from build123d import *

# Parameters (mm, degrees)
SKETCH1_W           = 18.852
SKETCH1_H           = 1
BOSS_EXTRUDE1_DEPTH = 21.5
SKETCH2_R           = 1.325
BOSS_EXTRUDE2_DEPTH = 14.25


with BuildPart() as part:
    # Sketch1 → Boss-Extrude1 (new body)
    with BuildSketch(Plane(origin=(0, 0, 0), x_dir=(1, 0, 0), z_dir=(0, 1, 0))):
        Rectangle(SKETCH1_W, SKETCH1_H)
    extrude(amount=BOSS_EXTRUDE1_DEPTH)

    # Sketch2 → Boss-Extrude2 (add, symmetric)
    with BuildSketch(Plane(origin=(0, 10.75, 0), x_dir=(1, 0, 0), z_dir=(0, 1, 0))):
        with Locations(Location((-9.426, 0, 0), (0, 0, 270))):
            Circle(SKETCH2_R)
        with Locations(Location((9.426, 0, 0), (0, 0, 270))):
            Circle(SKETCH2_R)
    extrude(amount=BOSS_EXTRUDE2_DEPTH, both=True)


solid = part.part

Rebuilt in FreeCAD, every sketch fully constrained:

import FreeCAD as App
import Part
import Sketcher

V = App.Vector
Q = App.Units.Quantity

doc = App.newDocument("Part")
body = doc.addObject("PartDesign::Body", "Body")

sketch1 = body.newObject("Sketcher::SketchObject", "Sketch")
sketch1.AttachmentSupport = (doc.getObject("XZ_Plane"), [""])
sketch1.MapMode = "FlatFace"
sketch1.addGeometry([
    Part.LineSegment(V(-9.4, -0.5, 0), V(-9.4, 0.5, 0)),
    Part.LineSegment(V(-9.4, 0.5, 0), V(9.4, 0.5, 0)),
    Part.LineSegment(V(9.4, 0.5, 0), V(9.4, -0.5, 0)),
    Part.LineSegment(V(9.4, -0.5, 0), V(-9.4, -0.5, 0)),
], False)
sketch1.addConstraint([
    Sketcher.Constraint("Coincident", 0, 2, 1, 1),
    Sketcher.Constraint("Coincident", 1, 2, 2, 1),
    Sketcher.Constraint("Coincident", 2, 2, 3, 1),
    Sketcher.Constraint("Coincident", 3, 2, 0, 1),
    Sketcher.Constraint("Vertical", 0),
    Sketcher.Constraint("Horizontal", 1),
    Sketcher.Constraint("Vertical", 2),
    Sketcher.Constraint("Horizontal", 3),
    Sketcher.Constraint("Symmetric", 0, 2, 2, 2, -1, 1),
    Sketcher.Constraint("DistanceY", 0, 1, 0, 2, Q("1 mm")),
    Sketcher.Constraint("DistanceX", 1, 1, 1, 2, Q("18.852 mm")),
])
pad1 = body.newObject("PartDesign::Pad", "Pad")
pad1.Profile = sketch1
pad1.Length = 21.5
pad1.Reversed = True

sketch2 = body.newObject("Sketcher::SketchObject", "Sketch001")
sketch2.AttachmentSupport = (doc.getObject("XZ_Plane"), [""])
sketch2.MapMode = "FlatFace"
sketch2.AttachmentOffset = App.Placement(V(0, 0, -10.75), App.Rotation())
sketch2.addGeometry([
    Part.Circle(V(-9.4, 0, 0), V(0, 0, 1), 1.3),
    Part.Circle(V(9.4, 0, 0), V(0, 0, 1), 1.3),
], False)
sketch2.addConstraint([
    Sketcher.Constraint("Equal", 0, 1),
    Sketcher.Constraint("Symmetric", 0, 3, 1, 3, -1, 1),
    Sketcher.Constraint("PointOnObject", 0, 3, -1),
    Sketcher.Constraint("Diameter", 0, Q("2.65 mm")),
    Sketcher.Constraint("DistanceX", 0, 3, -1, 1, Q("9.426 mm")),
])
pad2 = body.newObject("PartDesign::Pad", "Pad001")
pad2.Profile = sketch2
pad2.Length = 28.5
pad2.Midplane = True

doc.recompute()
